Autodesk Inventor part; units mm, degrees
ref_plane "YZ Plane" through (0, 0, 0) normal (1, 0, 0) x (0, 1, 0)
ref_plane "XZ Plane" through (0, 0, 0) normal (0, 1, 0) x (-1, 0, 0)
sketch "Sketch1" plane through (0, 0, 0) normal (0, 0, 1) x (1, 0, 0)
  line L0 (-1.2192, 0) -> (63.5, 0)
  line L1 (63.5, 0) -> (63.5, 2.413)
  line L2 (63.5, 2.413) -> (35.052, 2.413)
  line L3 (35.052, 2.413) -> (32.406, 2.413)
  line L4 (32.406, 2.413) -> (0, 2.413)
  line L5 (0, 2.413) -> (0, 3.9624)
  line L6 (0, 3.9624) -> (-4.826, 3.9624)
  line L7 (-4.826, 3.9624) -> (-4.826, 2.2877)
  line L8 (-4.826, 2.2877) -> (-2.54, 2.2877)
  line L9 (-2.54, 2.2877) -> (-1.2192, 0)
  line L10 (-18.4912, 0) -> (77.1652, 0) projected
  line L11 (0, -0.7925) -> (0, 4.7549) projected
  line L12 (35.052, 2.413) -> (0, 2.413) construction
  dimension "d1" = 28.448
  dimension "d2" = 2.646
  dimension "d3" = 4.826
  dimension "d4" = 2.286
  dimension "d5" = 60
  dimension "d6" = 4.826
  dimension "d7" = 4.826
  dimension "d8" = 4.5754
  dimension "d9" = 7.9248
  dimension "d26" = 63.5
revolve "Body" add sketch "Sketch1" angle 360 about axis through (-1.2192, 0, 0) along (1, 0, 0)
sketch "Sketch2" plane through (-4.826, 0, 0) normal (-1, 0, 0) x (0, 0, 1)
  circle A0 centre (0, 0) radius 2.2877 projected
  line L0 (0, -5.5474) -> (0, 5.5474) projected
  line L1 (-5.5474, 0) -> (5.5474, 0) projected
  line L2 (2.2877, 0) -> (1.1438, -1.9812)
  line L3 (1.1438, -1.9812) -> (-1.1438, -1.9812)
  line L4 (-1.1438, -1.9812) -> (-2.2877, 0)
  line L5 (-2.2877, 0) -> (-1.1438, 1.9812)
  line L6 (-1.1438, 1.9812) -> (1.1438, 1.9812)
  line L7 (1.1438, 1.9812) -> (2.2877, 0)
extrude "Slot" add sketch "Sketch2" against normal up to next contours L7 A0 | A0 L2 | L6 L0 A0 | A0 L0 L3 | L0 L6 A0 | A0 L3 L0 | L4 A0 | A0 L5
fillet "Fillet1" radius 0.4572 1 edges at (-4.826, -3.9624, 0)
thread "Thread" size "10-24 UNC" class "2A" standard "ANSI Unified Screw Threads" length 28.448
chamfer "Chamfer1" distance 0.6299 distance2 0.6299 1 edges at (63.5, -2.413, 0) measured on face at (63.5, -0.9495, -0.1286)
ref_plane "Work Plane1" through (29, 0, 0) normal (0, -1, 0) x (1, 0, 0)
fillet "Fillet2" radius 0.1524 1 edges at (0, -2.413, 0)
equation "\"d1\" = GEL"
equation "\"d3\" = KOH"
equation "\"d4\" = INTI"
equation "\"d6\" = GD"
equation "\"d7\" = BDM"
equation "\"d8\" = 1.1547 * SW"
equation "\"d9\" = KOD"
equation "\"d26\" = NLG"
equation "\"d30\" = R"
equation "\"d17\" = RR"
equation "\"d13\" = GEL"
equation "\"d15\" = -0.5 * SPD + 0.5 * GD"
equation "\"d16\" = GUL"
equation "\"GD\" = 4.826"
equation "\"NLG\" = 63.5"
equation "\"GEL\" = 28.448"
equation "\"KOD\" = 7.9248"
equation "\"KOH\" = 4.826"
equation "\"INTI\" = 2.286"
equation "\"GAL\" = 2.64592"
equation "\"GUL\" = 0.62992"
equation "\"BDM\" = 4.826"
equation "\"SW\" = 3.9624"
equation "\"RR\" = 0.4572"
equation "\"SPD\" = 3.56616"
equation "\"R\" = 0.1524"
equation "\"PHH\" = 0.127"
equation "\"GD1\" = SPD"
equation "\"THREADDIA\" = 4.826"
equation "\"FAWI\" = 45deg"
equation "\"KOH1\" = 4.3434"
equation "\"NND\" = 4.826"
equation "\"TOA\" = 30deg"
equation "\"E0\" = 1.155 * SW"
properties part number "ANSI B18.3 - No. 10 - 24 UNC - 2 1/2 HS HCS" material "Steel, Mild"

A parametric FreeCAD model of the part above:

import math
import FreeCAD as App
import Part
import Sketcher

V = App.Vector
Q = App.Units.Quantity


def edges_at(feature, points):
    """Names of the edges that pass closest to the given points."""
    edges = feature.Shape.Edges
    near = lambda p: min(range(len(edges)), key=lambda i: edges[i].distToShape(Part.Vertex(*p))[0])
    return sorted({f"Edge{near(p) + 1}" for p in points})


def add_polygon(sketch, points):
    """Adds a closed chain of lines whose ends are joined by coincident constraints."""
    first, n = sketch.GeometryCount, len(points)
    for a, b in zip(points, points[1:] + points[:1]):
        sketch.addGeometry(Part.LineSegment(App.Vector(*a, 0), App.Vector(*b, 0)), False)
    for i in range(n):
        sketch.addConstraint(Sketcher.Constraint("Coincident", first + i, 2, first + (i + 1) % n, 1))

doc = App.newDocument("Part")
body = doc.addObject("PartDesign::Body", "Body")

# Sketch on XY plane
sketch1 = doc.addObject("Sketcher::SketchObject", "Sketch")
body.addObject(sketch1)
sketch1.AttachmentSupport = (doc.XY_Plane, [""])
sketch1.MapMode = "FlatFace"
add_polygon(sketch1, [(-2.5, 2.3), (-1.2, 0), (63.5, 0), (63.5, 2.4), (0, 2.4), (0, 4), (-4.8, 4), (-4.8, 2.3)])  # lines 0-7
sketch1.addConstraint(Sketcher.Constraint("Horizontal", 1))
sketch1.addConstraint(Sketcher.Constraint("Vertical", 2))
sketch1.addConstraint(Sketcher.Constraint("Horizontal", 3))
sketch1.addConstraint(Sketcher.Constraint("Vertical", 4))
sketch1.addConstraint(Sketcher.Constraint("Horizontal", 5))
sketch1.addConstraint(Sketcher.Constraint("Vertical", 6))
sketch1.addConstraint(Sketcher.Constraint("Horizontal", 7))
sketch1.addConstraint(Sketcher.Constraint("PointOnObject", 0, 2, -1))
sketch1.addConstraint(Sketcher.Constraint("PointOnObject", 3, 2, -2))
sketch1.addConstraint(Sketcher.Constraint("DistanceX", 3, 2, 3, 1, Q("2.5 in")))
sketch1.addConstraint(Sketcher.Constraint("Angle", 0, Q("-60 deg")))
sketch1.addConstraint(Sketcher.Constraint("DistanceX", 5, 2, 5, 1, Q("0.19 in")))
sketch1.addConstraint(Sketcher.Constraint("DistanceX", 7, 1, 7, 2, Q("0.09 in")))
sketch1.addConstraint(Sketcher.Constraint("DistanceX", 1, 1, 1, 2, Q("2.548 in")))
sketch1.addConstraint(Sketcher.Constraint("DistanceY", 2, 1, 2, 2, Q("0.095 in")))
sketch1.addConstraint(Sketcher.Constraint("DistanceY", 4, 1, 4, 2, Q("0.061 in")))
revolution = doc.addObject("PartDesign::Revolution", "Revolution")
body.addObject(revolution)
revolution.Profile = sketch1
revolution.ReferenceAxis = (sketch1, ["H_Axis"])
revolution.Angle = 360

# Sketch on YZ plane
sketch2 = doc.addObject("Sketcher::SketchObject", "Sketch001")
body.addObject(sketch2)
sketch2.AttachmentSupport = (doc.YZ_Plane, [""])
sketch2.MapMode = "FlatFace"
sketch2.AttachmentOffset = App.Placement(V(0, 0, -0.19 * 25.4), App.Rotation())
sketch2.addGeometry(Part.LineSegment(V(2, 1.1, 0), V(0, 2.3, 0)), False)
sketch2.addGeometry(Part.ArcOfCircle(Part.Circle(V(0, 0, 0), V(0, 0, 1), 2.3), math.radians(30), math.radians(90)), False)
sketch2.addGeometry(Part.ArcOfCircle(Part.Circle(V(0, 0, 0), V(0, 0, 1), 2.3), math.radians(90), math.radians(150)), False)
sketch2.addGeometry(Part.LineSegment(V(0, 2.3, 0), V(-2, 1.1, 0)), False)
sketch2.addGeometry(Part.ArcOfCircle(Part.Circle(V(0, 0, 0), V(0, 0, 1), 2.3), math.radians(-30), math.radians(30)), False)
sketch2.addGeometry(Part.LineSegment(V(2, 1.1, 0), V(2, -1.1, 0)), False)
sketch2.addGeometry(Part.LineSegment(V(-2, 1.1, 0), V(-2, -1.1, 0)), False)
sketch2.addGeometry(Part.ArcOfCircle(Part.Circle(V(0, 0, 0), V(0, 0, 1), 2.3), math.radians(150), math.radians(210)), False)
sketch2.addGeometry(Part.LineSegment(V(-2, -1.1, 0), V(0, -2.3, 0)), False)
sketch2.addGeometry(Part.ArcOfCircle(Part.Circle(V(0, 0, 0), V(0, 0, 1), 2.3), math.radians(-150), math.radians(-90)), False)
sketch2.addGeometry(Part.ArcOfCircle(Part.Circle(V(0, 0, 0), V(0, 0, 1), 2.3), math.radians(-90), math.radians(-30)), False)
sketch2.addGeometry(Part.LineSegment(V(0, -2.3, 0), V(2, -1.1, 0)), False)
sketch2.addConstraint(Sketcher.Constraint("Coincident", 0, 1, 1, 1))
sketch2.addConstraint(Sketcher.Constraint("Coincident", 1, 2, 0, 2))
sketch2.addConstraint(Sketcher.Constraint("Coincident", 2, 1, 3, 1))
sketch2.addConstraint(Sketcher.Constraint("Coincident", 3, 2, 2, 2))
sketch2.addConstraint(Sketcher.Constraint("Coincident", 4, 1, 5, 2))
sketch2.addConstraint(Sketcher.Constraint("Coincident", 5, 1, 4, 2))
sketch2.addConstraint(Sketcher.Constraint("Coincident", 6, 1, 7, 1))
sketch2.addConstraint(Sketcher.Constraint("Coincident", 7, 2, 6, 2))
sketch2.addConstraint(Sketcher.Constraint("Coincident", 8, 1, 9, 1))
sketch2.addConstraint(Sketcher.Constraint("Coincident", 9, 2, 8, 2))
sketch2.addConstraint(Sketcher.Constraint("Coincident", 10, 1, 11, 1))
sketch2.addConstraint(Sketcher.Constraint("Coincident", 11, 2, 10, 2))
sketch2.addConstraint(Sketcher.Constraint("Vertical", 5))
sketch2.addConstraint(Sketcher.Constraint("Vertical", 6))
sketch2.addConstraint(Sketcher.Constraint("Coincident", 1, 3, -1, 1))
sketch2.addConstraint(Sketcher.Constraint("Coincident", 2, 3, -1, 1))
sketch2.addConstraint(Sketcher.Constraint("Coincident", 4, 3, -1, 1))
sketch2.addConstraint(Sketcher.Constraint("Coincident", 7, 3, -1, 1))
sketch2.addConstraint(Sketcher.Constraint("Coincident", 9, 3, -1, 1))
sketch2.addConstraint(Sketcher.Constraint("Coincident", 10, 3, -1, 1))
sketch2.addConstraint(Sketcher.Constraint("Coincident", 2, 1, 1, 2))
sketch2.addConstraint(Sketcher.Constraint("Coincident", 5, 1, 0, 1))
sketch2.addConstraint(Sketcher.Constraint("Coincident", 6, 1, 3, 2))
sketch2.addConstraint(Sketcher.Constraint("Coincident", 8, 1, 7, 2))
sketch2.addConstraint(Sketcher.Constraint("Coincident", 10, 1, 9, 2))
sketch2.addConstraint(Sketcher.Constraint("PointOnObject", 1, 2, -2))
sketch2.addConstraint(Sketcher.Constraint("PointOnObject", 9, 2, -2))
sketch2.addConstraint(Sketcher.Constraint("Parallel", 0, 8))
sketch2.addConstraint(Sketcher.Constraint("Parallel", 3, 11))
sketch2.addConstraint(Sketcher.Constraint("Angle", 0, Q("149.9988 deg")))
sketch2.addConstraint(Sketcher.Constraint("Radius", 1, 2.2877))
pad1 = doc.addObject("PartDesign::Pad", "Pad")
body.addObject(pad1)
pad1.Profile = sketch2
pad1.Length = 2.463
doc.recompute()

fillet = doc.addObject("PartDesign::Fillet", "Fillet")
body.addObject(fillet)
fillet.Base = (pad1, edges_at(pad1, [(-4.826, -3.962, 0)]))
fillet.Radius = Q("0.018 in")
doc.recompute()

chamfer = doc.addObject("PartDesign::Chamfer", "Chamfer")
body.addObject(chamfer)
chamfer.Base = (fillet, edges_at(fillet, [(63.5, -2.413, 0)]))
chamfer.ChamferType = "Two distances"
chamfer.Size = Q("0.0247992 in")
chamfer.Size2 = Q("0.0247992 in")
doc.recompute()

fillet2 = doc.addObject("PartDesign::Fillet", "Fillet001")
body.addObject(fillet2)
fillet2.Base = (chamfer, edges_at(chamfer, [(0, -2.413, 0)]))
fillet2.Radius = Q("0.006 in")

doc.recompute()
